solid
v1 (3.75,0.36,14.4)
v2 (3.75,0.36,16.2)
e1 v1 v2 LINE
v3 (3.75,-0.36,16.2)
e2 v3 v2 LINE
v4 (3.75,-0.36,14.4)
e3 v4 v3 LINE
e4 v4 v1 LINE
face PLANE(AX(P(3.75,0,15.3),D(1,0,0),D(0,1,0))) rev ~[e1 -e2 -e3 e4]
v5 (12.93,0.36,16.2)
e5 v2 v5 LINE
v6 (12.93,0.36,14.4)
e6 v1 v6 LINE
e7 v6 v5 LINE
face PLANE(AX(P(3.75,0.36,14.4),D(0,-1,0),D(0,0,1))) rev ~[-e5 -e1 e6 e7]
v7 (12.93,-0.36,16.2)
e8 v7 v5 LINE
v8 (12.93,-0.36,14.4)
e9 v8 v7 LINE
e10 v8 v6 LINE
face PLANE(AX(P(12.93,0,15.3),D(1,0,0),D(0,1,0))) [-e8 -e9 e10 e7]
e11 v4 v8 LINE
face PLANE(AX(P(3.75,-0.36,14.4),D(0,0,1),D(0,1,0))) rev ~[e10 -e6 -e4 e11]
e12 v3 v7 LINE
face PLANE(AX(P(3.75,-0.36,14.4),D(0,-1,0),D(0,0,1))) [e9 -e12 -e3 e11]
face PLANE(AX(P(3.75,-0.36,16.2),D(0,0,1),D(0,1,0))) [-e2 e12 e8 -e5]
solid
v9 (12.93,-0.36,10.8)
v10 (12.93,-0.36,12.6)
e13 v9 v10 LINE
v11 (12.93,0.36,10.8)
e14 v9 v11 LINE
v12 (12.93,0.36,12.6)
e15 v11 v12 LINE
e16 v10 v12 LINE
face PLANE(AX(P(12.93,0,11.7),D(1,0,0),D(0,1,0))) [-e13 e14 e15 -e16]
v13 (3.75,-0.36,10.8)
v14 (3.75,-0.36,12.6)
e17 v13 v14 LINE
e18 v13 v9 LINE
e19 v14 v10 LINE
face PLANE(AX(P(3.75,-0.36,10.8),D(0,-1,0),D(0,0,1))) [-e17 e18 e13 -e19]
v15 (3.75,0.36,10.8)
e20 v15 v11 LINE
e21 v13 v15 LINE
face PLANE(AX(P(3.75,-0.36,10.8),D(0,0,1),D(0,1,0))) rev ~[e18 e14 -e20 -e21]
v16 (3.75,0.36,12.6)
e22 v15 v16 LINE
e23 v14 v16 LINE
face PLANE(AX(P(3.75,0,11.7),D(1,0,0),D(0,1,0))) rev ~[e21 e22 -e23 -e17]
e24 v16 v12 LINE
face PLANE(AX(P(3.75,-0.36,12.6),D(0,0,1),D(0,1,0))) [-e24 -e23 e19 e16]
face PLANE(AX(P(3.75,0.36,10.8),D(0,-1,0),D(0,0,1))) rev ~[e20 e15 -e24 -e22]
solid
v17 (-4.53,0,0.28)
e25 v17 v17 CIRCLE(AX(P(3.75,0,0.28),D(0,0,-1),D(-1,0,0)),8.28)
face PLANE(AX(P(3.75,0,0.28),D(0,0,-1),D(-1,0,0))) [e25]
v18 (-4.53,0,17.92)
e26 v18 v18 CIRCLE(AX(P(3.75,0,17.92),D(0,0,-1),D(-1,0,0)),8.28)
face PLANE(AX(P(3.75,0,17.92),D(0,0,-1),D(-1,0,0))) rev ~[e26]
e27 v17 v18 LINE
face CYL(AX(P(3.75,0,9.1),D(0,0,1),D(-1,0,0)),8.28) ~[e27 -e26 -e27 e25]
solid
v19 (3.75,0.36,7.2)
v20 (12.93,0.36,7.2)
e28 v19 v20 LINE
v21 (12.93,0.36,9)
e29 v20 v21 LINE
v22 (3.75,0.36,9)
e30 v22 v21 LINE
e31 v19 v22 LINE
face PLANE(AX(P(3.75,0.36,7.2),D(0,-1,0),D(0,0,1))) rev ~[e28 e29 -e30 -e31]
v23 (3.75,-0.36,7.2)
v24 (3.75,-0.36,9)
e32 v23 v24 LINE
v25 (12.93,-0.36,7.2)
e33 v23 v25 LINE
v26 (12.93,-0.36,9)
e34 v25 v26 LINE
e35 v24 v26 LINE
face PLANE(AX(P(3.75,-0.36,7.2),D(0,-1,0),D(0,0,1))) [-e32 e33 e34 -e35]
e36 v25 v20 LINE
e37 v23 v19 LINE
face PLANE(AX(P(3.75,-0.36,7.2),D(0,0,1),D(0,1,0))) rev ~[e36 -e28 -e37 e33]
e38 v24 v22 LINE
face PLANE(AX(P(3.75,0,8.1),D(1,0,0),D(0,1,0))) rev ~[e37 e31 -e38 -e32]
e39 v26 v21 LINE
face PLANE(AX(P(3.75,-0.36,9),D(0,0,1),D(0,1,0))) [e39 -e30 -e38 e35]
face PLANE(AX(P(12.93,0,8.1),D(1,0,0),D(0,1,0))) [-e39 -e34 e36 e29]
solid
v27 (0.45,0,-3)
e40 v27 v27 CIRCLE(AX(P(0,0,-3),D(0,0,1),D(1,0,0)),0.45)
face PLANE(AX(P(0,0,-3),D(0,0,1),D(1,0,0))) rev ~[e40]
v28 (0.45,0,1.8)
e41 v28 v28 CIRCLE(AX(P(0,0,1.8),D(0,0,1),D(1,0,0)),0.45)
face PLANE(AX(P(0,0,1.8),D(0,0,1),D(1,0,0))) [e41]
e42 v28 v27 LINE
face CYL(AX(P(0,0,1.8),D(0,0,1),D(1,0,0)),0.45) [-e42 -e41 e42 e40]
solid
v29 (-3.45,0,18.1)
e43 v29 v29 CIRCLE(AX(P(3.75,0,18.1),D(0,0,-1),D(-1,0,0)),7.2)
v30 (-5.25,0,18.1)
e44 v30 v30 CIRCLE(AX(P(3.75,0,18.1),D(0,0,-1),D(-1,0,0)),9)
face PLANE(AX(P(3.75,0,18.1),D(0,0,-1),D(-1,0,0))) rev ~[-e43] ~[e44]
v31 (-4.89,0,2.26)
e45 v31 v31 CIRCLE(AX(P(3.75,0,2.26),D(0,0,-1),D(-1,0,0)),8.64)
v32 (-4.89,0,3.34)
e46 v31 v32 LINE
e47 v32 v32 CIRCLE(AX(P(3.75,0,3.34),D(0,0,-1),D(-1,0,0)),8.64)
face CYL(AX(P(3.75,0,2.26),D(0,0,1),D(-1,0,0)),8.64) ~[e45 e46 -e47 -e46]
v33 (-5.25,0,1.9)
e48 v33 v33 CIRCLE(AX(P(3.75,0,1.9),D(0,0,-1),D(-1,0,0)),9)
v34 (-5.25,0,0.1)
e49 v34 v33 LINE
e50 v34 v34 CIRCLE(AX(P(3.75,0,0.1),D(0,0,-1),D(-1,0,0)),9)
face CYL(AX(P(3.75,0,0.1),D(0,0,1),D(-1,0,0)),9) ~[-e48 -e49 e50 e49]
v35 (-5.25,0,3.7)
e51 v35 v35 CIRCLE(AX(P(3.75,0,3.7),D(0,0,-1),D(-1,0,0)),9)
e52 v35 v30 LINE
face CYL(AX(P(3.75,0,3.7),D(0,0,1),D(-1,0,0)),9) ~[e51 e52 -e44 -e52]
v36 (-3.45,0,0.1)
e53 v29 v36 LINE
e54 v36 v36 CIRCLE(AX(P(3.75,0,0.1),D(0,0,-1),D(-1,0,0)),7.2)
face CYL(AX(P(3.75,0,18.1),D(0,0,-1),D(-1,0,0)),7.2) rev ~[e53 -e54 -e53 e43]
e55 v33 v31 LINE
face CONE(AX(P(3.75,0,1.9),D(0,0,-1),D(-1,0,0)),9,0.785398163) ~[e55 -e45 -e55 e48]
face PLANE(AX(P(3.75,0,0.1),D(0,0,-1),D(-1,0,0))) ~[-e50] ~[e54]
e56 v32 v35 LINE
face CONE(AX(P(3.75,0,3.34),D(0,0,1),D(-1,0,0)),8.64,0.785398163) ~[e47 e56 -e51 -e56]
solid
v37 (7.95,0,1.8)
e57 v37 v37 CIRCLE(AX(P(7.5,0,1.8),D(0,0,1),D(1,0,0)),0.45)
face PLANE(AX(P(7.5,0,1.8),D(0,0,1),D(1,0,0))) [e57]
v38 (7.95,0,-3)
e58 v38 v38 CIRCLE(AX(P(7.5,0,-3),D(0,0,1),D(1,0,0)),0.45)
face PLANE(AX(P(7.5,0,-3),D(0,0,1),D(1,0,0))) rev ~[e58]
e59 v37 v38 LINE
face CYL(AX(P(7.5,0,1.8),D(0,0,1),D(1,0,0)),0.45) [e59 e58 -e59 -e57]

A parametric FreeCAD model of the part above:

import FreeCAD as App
import Part
import Sketcher
Q = App.Units.Quantity

doc = App.newDocument("Part")
body = doc.addObject("PartDesign::Body", "Body")

sketch1 = body.newObject("Sketcher::SketchObject", "Sketch")
sketch1.AttachmentSupport = (doc.getObject("XZ_Plane"), [""])
sketch1.MapMode = "FlatFace"
sketch1.addGeometry([
    Part.LineSegment(App.Vector(-5.2, 1.9, 0), App.Vector(-5.2, 0.1, 0)),
    Part.LineSegment(App.Vector(-5.2, 0.1, 0), App.Vector(-3.5, 0.1, 0)),
    Part.LineSegment(App.Vector(-3.5, 0.1, 0), App.Vector(-3.5, 18.1, 0)),
    Part.LineSegment(App.Vector(-3.5, 18.1, 0), App.Vector(-5.2, 18.1, 0)),
    Part.LineSegment(App.Vector(-5.2, 18.1, 0), App.Vector(-5.2, 3.7, 0)),
    Part.LineSegment(App.Vector(-5.2, 3.7, 0), App.Vector(-4.9, 3.3, 0)),
    Part.LineSegment(App.Vector(-4.9, 3.3, 0), App.Vector(-4.9, 2.3, 0)),
    Part.LineSegment(App.Vector(-4.9, 2.3, 0), App.Vector(-5.2, 1.9, 0)),
], False)
sketch1.addGeometry(Part.LineSegment(App.Vector(3.8, 18.1, 0), App.Vector(3.8, 0.1, 0)), True)
sketch1.addConstraint([
    Sketcher.Constraint("Coincident", 0, 2, 1, 1),
    Sketcher.Constraint("Coincident", 1, 2, 2, 1),
    Sketcher.Constraint("Coincident", 2, 2, 3, 1),
    Sketcher.Constraint("Coincident", 3, 2, 4, 1),
    Sketcher.Constraint("Coincident", 4, 2, 5, 1),
    Sketcher.Constraint("Coincident", 5, 2, 6, 1),
    Sketcher.Constraint("Coincident", 6, 2, 7, 1),
    Sketcher.Constraint("Coincident", 7, 2, 0, 1),
    Sketcher.Constraint("Vertical", 0),
    Sketcher.Constraint("Horizontal", 1),
    Sketcher.Constraint("Vertical", 2),
    Sketcher.Constraint("Horizontal", 3),
    Sketcher.Constraint("Vertical", 4),
    Sketcher.Constraint("Vertical", 6),
    Sketcher.Constraint("Vertical", 8),
    Sketcher.Constraint("Perpendicular", 5, 7),
    Sketcher.Constraint("Horizontal", 3, 2, 8, 1),
    Sketcher.Constraint("Horizontal", 1, 2, 8, 2),
    Sketcher.Constraint("Vertical", 0, 2, 3, 2),
    Sketcher.Constraint("Equal", 3, 0),
    Sketcher.Constraint("Equal", 5, 7),
    Sketcher.Constraint("DistanceY", 2, 1, 2, 2, Q("18 mm")),
    Sketcher.Constraint("DistanceX", 1, 1, 1, 2, Q("1.8 mm")),
    Sketcher.Constraint("DistanceY", 4, 2, 4, 1, Q("14.4 mm")),
    Sketcher.Constraint("DistanceX", 3, 2, 8, 1, Q("9 mm")),
    Sketcher.Constraint("DistanceY", 6, 2, 6, 1, Q("1.08 mm")),
    Sketcher.Constraint("DistanceY", -1, 1, 0, 2, Q("0.1 mm")),
    Sketcher.Constraint("DistanceX", 0, 2, -1, 1, Q("5.25 mm")),
])
revolution = body.newObject("PartDesign::Revolution", "Revolution")
revolution.Profile = sketch1
revolution.ReferenceAxis = (sketch1, ["Axis0"])
revolution.Angle = 360
body2 = doc.addObject("PartDesign::Body", "Body001")

sketch2 = body2.newObject("Sketcher::SketchObject", "Sketch001")
sketch2.AttachmentSupport = (doc.getObject("XZ_Plane001"), [""])
sketch2.MapMode = "FlatFace"
sketch2.addGeometry([
    Part.LineSegment(App.Vector(-5, 18, 0), App.Vector(-5, 0, 0)),
    Part.LineSegment(App.Vector(-5, 0, 0), App.Vector(4, 0, 0)),
    Part.LineSegment(App.Vector(4, 0, 0), App.Vector(4, 18, 0)),
    Part.LineSegment(App.Vector(4, 18, 0), App.Vector(-5, 18, 0)),
], False)
sketch2.addGeometry(Part.LineSegment(App.Vector(4, 18, 0), App.Vector(4, 0, 0)), True)
sketch2.addConstraint([
    Sketcher.Constraint("Coincident", 0, 2, 1, 1),
    Sketcher.Constraint("Coincident", 1, 2, 2, 1),
    Sketcher.Constraint("Coincident", 2, 2, 3, 1),
    Sketcher.Constraint("Coincident", 3, 2, 0, 1),
    Sketcher.Constraint("Vertical", 0),
    Sketcher.Constraint("Horizontal", 1),
    Sketcher.Constraint("Vertical", 2),
    Sketcher.Constraint("Horizontal", 3),
    Sketcher.Constraint("Vertical", 4),
    Sketcher.Constraint("Coincident", 4, 1, 2, 2),
    Sketcher.Constraint("Horizontal", 0, 2, 4, 2),
    Sketcher.Constraint("DistanceX", 1, 1, 1, 2, Q("8.28 mm")),
    Sketcher.Constraint("DistanceY", 0, 2, 0, 1, Q("17.64 mm")),
    Sketcher.Constraint("DistanceX", 0, 2, -1, 1, Q("4.53 mm")),
    Sketcher.Constraint("DistanceY", -1, 1, 0, 2, Q("0.28 mm")),
])
revolution2 = body2.newObject("PartDesign::Revolution", "Revolution001")
revolution2.Profile = sketch2
revolution2.ReferenceAxis = (sketch2, ["Axis0"])
revolution2.Angle = 360
body3 = doc.addObject("PartDesign::Body", "Body002")
body3.AllowCompound = True

sketch3 = body3.newObject("Sketcher::SketchObject", "Sketch002")
sketch3.AttachmentSupport = (doc.getObject("XY_Plane002"), [""])
sketch3.MapMode = "FlatFace"
sketch3.AttachmentOffset = App.Placement(App.Vector(0, 0, 1.8), App.Rotation())
sketch3.addGeometry([
    Part.Circle(App.Vector(0, 0, 0), App.Vector(0, 0, 1), 0.45),
    Part.Circle(App.Vector(7.5, 0, 0), App.Vector(0, 0, 1), 0.45),
], False)
sketch3.addConstraint([
    Sketcher.Constraint("Coincident", 0, 3, -1, 1),
    Sketcher.Constraint("Equal", 0, 1),
    Sketcher.Constraint("PointOnObject", 1, 3, -1),
    Sketcher.Constraint("Diameter", 0, Q("0.9 mm")),
    Sketcher.Constraint("DistanceX", -1, 1, 1, 3, Q("7.5 mm")),
])
pad1 = body3.newObject("PartDesign::Pad", "Pad")
pad1.Profile = sketch3
pad1.Length = 4.8
pad1.Reversed = True
body4 = doc.addObject("PartDesign::Body", "Body003")
body4.AllowCompound = True

sketch4 = body4.newObject("Sketcher::SketchObject", "Sketch003")
sketch4.AttachmentSupport = (doc.getObject("YZ_Plane003"), [""])
sketch4.MapMode = "FlatFace"
sketch4.AttachmentOffset = App.Placement(App.Vector(0, 0, 3.75), App.Rotation())
sketch4.addGeometry([
    Part.LineSegment(App.Vector(-0.4, 9, 0), App.Vector(-0.4, 7.2, 0)),
    Part.LineSegment(App.Vector(-0.4, 7.2, 0), App.Vector(0.4, 7.2, 0)),
    Part.LineSegment(App.Vector(0.4, 7.2, 0), App.Vector(0.4, 9, 0)),
    Part.LineSegment(App.Vector(0.4, 9, 0), App.Vector(-0.4, 9, 0)),
    Part.LineSegment(App.Vector(-0.4, 12.6, 0), App.Vector(-0.4, 10.8, 0)),
    Part.LineSegment(App.Vector(-0.4, 10.8, 0), App.Vector(0.4, 10.8, 0)),
    Part.LineSegment(App.Vector(0.4, 10.8, 0), App.Vector(0.4, 12.6, 0)),
    Part.LineSegment(App.Vector(0.4, 12.6, 0), App.Vector(-0.4, 12.6, 0)),
    Part.LineSegment(App.Vector(-0.4, 16.2, 0), App.Vector(-0.4, 14.4, 0)),
    Part.LineSegment(App.Vector(-0.4, 14.4, 0), App.Vector(0.4, 14.4, 0)),
    Part.LineSegment(App.Vector(0.4, 14.4, 0), App.Vector(0.4, 16.2, 0)),
    Part.LineSegment(App.Vector(0.4, 16.2, 0), App.Vector(-0.4, 16.2, 0)),
], False)
sketch4.addConstraint([
    Sketcher.Constraint("Coincident", 0, 2, 1, 1),
    Sketcher.Constraint("Coincident", 1, 2, 2, 1),
    Sketcher.Constraint("Coincident", 2, 2, 3, 1),
    Sketcher.Constraint("Coincident", 3, 2, 0, 1),
    Sketcher.Constraint("Coincident", 4, 2, 5, 1),
    Sketcher.Constraint("Coincident", 5, 2, 6, 1),
    Sketcher.Constraint("Coincident", 6, 2, 7, 1),
    Sketcher.Constraint("Coincident", 7, 2, 4, 1),
    Sketcher.Constraint("Coincident", 8, 2, 9, 1),
    Sketcher.Constraint("Coincident", 9, 2, 10, 1),
    Sketcher.Constraint("Coincident", 10, 2, 11, 1),
    Sketcher.Constraint("Coincident", 11, 2, 8, 1),
    Sketcher.Constraint("Vertical", 0),
    Sketcher.Constraint("Horizontal", 1),
    Sketcher.Constraint("Vertical", 2),
    Sketcher.Constraint("Horizontal", 3),
    Sketcher.Constraint("Vertical", 4),
    Sketcher.Constraint("Horizontal", 5),
    Sketcher.Constraint("Vertical", 6),
    Sketcher.Constraint("Horizontal", 7),
    Sketcher.Constraint("Vertical", 8),
    Sketcher.Constraint("Horizontal", 9),
    Sketcher.Constraint("Vertical", 10),
    Sketcher.Constraint("Horizontal", 11),
    Sketcher.Constraint("Vertical", 3, 2, 4, 2),
    Sketcher.Constraint("Vertical", 2, 2, 5, 2),
    Sketcher.Constraint("Vertical", 7, 2, 8, 2),
    Sketcher.Constraint("Vertical", 6, 2, 9, 2),
    Sketcher.Constraint("Equal", 2, 4),
    Sketcher.Constraint("Equal", 6, 8),
    Sketcher.Constraint("DistanceY", 0, 2, 0, 1, Q("1.8 mm")),
    Sketcher.Constraint("DistanceY", -1, 1, 2, 2, Q("9 mm")),
    Sketcher.Constraint("DistanceX", 1, 1, 1, 2, Q("0.72 mm")),
    Sketcher.Constraint("DistanceY", -1, 1, 4, 2, Q("10.8 mm")),
    Sketcher.Constraint("DistanceY", -1, 1, 8, 2, Q("14.4 mm")),
    Sketcher.Constraint("DistanceX", 0, 2, -1, 1, Q("0.36 mm")),
])
pad2 = body4.newObject("PartDesign::Pad", "Pad001")
pad2.Profile = sketch4
pad2.Length = 9.18

doc.recompute()
